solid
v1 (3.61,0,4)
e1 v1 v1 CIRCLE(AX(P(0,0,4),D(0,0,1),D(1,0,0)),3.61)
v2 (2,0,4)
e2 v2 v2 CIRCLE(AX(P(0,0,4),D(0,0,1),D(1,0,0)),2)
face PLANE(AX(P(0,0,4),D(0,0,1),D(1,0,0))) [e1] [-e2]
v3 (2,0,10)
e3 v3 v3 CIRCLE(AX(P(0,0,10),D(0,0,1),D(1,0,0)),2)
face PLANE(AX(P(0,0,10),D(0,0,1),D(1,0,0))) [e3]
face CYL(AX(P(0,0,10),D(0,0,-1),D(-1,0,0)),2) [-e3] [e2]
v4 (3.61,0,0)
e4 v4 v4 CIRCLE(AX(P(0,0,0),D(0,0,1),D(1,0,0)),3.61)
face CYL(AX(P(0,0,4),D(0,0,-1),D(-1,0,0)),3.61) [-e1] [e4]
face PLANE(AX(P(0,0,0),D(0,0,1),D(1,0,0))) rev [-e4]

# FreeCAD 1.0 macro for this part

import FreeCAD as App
import Part
import Sketcher
from FreeCAD import Vector

doc = App.newDocument("Part")
params = doc.addObject("Spreadsheet::Sheet", "Params")
for row, (alias, value) in enumerate([
    ("sketch1_diameter", "7.22 mm"),
    ("pad1_length", "4 mm"),
    ("sketch2_diameter", "4 mm"),
    ("pad2_length", "6 mm"),
], start=1):
    params.set(f"A{row}", alias)
    params.set(f"B{row}", "=" + value)
    params.setAlias(f"B{row}", alias)

body = doc.addObject("PartDesign::Body", "Body")

sketch1 = body.newObject("Sketcher::SketchObject", "Sketch")
sketch1.AttachmentSupport = (doc.getObject("XY_Plane"), [""])
sketch1.MapMode = "FlatFace"
sketch1.addGeometry(Part.Circle(Vector(0, 0, 0), Vector(0, 0, 1), 3.61), False)
sketch1.addConstraint([
    Sketcher.Constraint("Coincident", 0, 3, -1, 1),
    Sketcher.Constraint("Diameter", 0, 7.22),
])
sketch1.setExpression("Constraints[1]", "Params.sketch1_diameter")
pad1 = body.newObject("PartDesign::Pad", "Pad")
pad1.Profile = sketch1
pad1.setExpression("Length", "Params.pad1_length")

sketch2 = body.newObject("Sketcher::SketchObject", "Sketch001")
sketch2.AttachmentSupport = (doc.getObject("XY_Plane"), [""])
sketch2.MapMode = "FlatFace"
sketch2.AttachmentOffset = App.Placement(Vector(0, 0, 4), App.Rotation())
sketch2.addGeometry(Part.Circle(Vector(0, 0, 0), Vector(0, 0, 1), 2), False)
sketch2.addConstraint([
    Sketcher.Constraint("Coincident", 0, 3, -1, 1),
    Sketcher.Constraint("Diameter", 0, 4.0),
])
sketch2.setExpression("Constraints[1]", "Params.sketch2_diameter")
pad2 = body.newObject("PartDesign::Pad", "Pad001")
pad2.Profile = sketch2
pad2.setExpression("Length", "Params.pad2_length")

doc.recompute()
